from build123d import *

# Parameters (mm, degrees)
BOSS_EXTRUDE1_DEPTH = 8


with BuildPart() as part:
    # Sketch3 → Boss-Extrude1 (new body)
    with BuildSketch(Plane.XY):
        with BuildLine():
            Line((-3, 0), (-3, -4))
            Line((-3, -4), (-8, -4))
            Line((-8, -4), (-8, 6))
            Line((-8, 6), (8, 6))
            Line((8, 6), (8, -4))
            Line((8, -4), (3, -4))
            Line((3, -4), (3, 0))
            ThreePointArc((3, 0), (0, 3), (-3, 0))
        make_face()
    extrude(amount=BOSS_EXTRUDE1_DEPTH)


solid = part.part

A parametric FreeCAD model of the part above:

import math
import FreeCAD as App
import Part
import Sketcher

V = App.Vector

doc = App.newDocument("Part")
body = doc.addObject("PartDesign::Body", "Body")

# Sketch on XY plane
sketch1 = body.newObject("Sketcher::SketchObject", "Sketch")
sketch1.AttachmentSupport = (doc.getObject("XY_Plane"), [""])
sketch1.MapMode = "FlatFace"
sketch1.addGeometry([
    Part.LineSegment(V(-3, -4, 0), V(-3, 0, 0)),  # 0
    Part.ArcOfCircle(Part.Circle(V(0, 0, 0), V(0, 0, 1), 3), math.radians(0), math.radians(180)),  # 1
    Part.LineSegment(V(3, 0, 0), V(3, -4, 0)),  # 2
    Part.LineSegment(V(3, -4, 0), V(8, -4, 0)),  # 3
    Part.LineSegment(V(8, -4, 0), V(8, 6, 0)),  # 4
    Part.LineSegment(V(8, 6, 0), V(-8, 6, 0)),  # 5
    Part.LineSegment(V(-8, 6, 0), V(-8, -4, 0)),  # 6
    Part.LineSegment(V(-8, -4, 0), V(-3, -4, 0)),  # 7
], False)
sketch1.addConstraint([
    Sketcher.Constraint("Tangent", 0, 2, 1, 2),
    Sketcher.Constraint("Tangent", 1, 1, 2, 1),
    Sketcher.Constraint("Coincident", 2, 2, 3, 1),
    Sketcher.Constraint("Coincident", 3, 2, 4, 1),
    Sketcher.Constraint("Coincident", 4, 2, 5, 1),
    Sketcher.Constraint("Coincident", 5, 2, 6, 1),
    Sketcher.Constraint("Coincident", 6, 2, 7, 1),
    Sketcher.Constraint("Coincident", 7, 2, 0, 1),
    Sketcher.Constraint("Vertical", 0),
    Sketcher.Constraint("Vertical", 2),
    Sketcher.Constraint("Horizontal", 3),
    Sketcher.Constraint("Vertical", 4),
    Sketcher.Constraint("Horizontal", 5),
    Sketcher.Constraint("Vertical", 6),
    Sketcher.Constraint("Horizontal", 7),
    Sketcher.Constraint("Coincident", 1, 3, -1, 1),
    Sketcher.Constraint("Symmetric", 3, 2, 6, 2, -2),
    Sketcher.Constraint("Radius", 1, 3.0),
    Sketcher.Constraint("DistanceX", 3, 1, 3, 2, 5.0),
    Sketcher.Constraint("DistanceY", 0, 1, 0, 2, 4.0),
    Sketcher.Constraint("DistanceY", 4, 1, 4, 2, 10.0),
])
pad1 = body.newObject("PartDesign::Pad", "Pad")
pad1.Profile = sketch1
pad1.Length = 8

doc.recompute()
